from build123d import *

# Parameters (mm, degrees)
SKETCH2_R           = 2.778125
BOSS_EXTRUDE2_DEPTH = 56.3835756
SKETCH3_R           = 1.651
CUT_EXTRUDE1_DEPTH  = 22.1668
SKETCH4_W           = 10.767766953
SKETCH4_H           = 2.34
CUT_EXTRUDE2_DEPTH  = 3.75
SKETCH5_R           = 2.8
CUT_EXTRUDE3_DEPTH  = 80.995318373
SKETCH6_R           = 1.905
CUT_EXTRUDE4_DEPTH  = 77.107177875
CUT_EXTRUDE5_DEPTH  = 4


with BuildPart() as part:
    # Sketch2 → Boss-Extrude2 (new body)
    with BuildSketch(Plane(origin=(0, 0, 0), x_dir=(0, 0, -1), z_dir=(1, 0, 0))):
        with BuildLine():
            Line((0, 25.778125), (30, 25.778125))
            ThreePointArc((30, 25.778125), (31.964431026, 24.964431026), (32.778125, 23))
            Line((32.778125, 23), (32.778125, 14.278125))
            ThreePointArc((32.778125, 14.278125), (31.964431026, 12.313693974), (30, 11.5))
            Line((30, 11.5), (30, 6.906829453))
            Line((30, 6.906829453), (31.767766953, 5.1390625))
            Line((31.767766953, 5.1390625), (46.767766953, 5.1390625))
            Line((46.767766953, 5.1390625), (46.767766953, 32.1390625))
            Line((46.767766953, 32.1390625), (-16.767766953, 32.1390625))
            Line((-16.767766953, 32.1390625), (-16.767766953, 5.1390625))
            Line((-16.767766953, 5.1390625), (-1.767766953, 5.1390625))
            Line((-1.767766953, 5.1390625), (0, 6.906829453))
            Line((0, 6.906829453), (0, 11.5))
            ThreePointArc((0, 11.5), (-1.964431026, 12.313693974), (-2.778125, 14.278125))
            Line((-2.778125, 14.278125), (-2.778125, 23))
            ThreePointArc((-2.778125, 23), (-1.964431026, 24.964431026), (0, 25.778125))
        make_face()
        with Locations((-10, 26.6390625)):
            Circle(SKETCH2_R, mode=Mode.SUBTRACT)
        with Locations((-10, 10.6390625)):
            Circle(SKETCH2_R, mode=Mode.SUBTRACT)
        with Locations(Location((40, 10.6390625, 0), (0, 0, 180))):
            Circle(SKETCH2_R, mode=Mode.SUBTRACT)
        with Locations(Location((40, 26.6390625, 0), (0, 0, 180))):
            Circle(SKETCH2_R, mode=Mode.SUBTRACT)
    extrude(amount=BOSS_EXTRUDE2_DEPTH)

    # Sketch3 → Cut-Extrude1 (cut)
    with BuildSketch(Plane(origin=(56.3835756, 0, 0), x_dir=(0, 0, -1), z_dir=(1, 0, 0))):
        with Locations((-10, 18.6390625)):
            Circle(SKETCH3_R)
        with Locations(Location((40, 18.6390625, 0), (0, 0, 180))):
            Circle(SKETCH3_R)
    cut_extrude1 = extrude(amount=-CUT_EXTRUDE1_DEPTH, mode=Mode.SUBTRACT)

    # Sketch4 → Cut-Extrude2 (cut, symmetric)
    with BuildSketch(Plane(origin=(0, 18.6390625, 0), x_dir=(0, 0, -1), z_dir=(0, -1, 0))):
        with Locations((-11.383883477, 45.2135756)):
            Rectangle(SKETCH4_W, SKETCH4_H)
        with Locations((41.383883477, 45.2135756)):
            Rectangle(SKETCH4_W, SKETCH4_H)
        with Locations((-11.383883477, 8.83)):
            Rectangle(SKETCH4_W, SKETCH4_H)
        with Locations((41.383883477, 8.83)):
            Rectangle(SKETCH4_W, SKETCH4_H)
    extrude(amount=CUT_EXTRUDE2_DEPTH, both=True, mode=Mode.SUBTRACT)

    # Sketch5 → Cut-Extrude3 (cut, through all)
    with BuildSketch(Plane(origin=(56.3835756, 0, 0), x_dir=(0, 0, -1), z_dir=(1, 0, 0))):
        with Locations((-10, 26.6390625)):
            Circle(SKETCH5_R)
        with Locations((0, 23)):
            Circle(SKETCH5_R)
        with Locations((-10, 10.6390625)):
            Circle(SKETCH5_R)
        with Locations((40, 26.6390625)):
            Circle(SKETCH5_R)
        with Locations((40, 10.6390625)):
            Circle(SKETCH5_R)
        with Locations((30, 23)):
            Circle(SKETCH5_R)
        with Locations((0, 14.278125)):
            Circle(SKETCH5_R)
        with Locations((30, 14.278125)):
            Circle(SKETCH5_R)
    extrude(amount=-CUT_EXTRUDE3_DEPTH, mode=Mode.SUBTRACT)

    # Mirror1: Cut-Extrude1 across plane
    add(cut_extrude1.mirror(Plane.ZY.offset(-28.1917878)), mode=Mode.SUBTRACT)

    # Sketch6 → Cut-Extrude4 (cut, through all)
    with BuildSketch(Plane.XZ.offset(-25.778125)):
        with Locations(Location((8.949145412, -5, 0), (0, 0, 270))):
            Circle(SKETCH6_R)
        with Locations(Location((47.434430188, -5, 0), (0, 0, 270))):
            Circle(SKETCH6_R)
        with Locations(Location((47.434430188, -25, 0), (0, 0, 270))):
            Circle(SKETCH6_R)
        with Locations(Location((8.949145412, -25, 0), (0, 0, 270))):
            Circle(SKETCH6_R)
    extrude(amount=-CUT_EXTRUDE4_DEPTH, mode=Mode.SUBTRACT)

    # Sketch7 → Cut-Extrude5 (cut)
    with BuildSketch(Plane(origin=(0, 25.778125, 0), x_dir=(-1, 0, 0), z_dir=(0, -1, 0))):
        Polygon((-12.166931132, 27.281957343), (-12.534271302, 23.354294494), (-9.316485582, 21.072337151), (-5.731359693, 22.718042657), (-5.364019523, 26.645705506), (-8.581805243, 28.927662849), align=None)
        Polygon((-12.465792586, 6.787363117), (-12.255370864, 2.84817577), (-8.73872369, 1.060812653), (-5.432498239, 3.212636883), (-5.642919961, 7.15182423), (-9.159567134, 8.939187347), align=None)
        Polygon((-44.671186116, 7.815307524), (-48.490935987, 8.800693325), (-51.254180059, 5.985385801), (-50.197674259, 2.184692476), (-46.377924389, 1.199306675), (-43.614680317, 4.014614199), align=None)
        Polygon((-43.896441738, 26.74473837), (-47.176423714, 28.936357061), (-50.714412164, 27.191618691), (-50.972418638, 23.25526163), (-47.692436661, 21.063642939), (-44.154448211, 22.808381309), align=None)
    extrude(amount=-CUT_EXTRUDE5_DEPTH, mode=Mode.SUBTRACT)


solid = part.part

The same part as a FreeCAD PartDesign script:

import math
import FreeCAD as App
import Part
import Sketcher
Q = App.Units.Quantity

doc = App.newDocument("Part")
body = doc.addObject("PartDesign::Body", "Body")

sketch1 = body.newObject("Sketcher::SketchObject", "Sketch")
sketch1.AttachmentSupport = (doc.getObject("YZ_Plane"), [""])
sketch1.MapMode = "FlatFace"
sketch1.addGeometry([
    Part.LineSegment(App.Vector(25.8, 0, 0), App.Vector(25.8, -30, 0)),
    Part.ArcOfCircle(Part.Circle(App.Vector(23, -30, 0), App.Vector(0, 0, 1), 2.8), math.radians(-90), math.radians(0)),
    Part.LineSegment(App.Vector(23, -32.8, 0), App.Vector(14.3, -32.8, 0)),
    Part.ArcOfCircle(Part.Circle(App.Vector(14.3, -30, 0), App.Vector(0, 0, 1), 2.8), math.radians(-180), math.radians(-90)),
    Part.LineSegment(App.Vector(11.5, -30, 0), App.Vector(6.9, -30, 0)),
    Part.LineSegment(App.Vector(6.9, -30, 0), App.Vector(5.1, -31.8, 0)),
    Part.LineSegment(App.Vector(5.1, -31.8, 0), App.Vector(5.1, -46.8, 0)),
    Part.LineSegment(App.Vector(5.1, -46.8, 0), App.Vector(32.1, -46.8, 0)),
    Part.LineSegment(App.Vector(32.1, -46.8, 0), App.Vector(32.1, 16.8, 0)),
    Part.LineSegment(App.Vector(32.1, 16.8, 0), App.Vector(5.1, 16.8, 0)),
    Part.LineSegment(App.Vector(5.1, 16.8, 0), App.Vector(5.1, 1.8, 0)),
    Part.LineSegment(App.Vector(5.1, 1.8, 0), App.Vector(6.9, 0, 0)),
    Part.LineSegment(App.Vector(6.9, 0, 0), App.Vector(11.5, 0, 0)),
    Part.ArcOfCircle(Part.Circle(App.Vector(14.3, 0, 0), App.Vector(0, 0, 1), 2.8), math.radians(90), math.radians(180)),
    Part.LineSegment(App.Vector(14.3, 2.8, 0), App.Vector(23, 2.8, 0)),
    Part.ArcOfCircle(Part.Circle(App.Vector(23, 0, 0), App.Vector(0, 0, 1), 2.8), math.radians(0), math.radians(90)),
    Part.Circle(App.Vector(10.6, 10, 0), App.Vector(0, 0, 1), 2.8),
    Part.Circle(App.Vector(10.6, -40, 0), App.Vector(0, 0, 1), 2.8),
    Part.Circle(App.Vector(26.6, 10, 0), App.Vector(0, 0, 1), 2.8),
    Part.Circle(App.Vector(26.6, -40, 0), App.Vector(0, 0, 1), 2.8),
], False)
sketch1.addConstraint([
    Sketcher.Constraint("Tangent", 0, 2, 1, 2),
    Sketcher.Constraint("Tangent", 1, 1, 2, 1),
    Sketcher.Constraint("Tangent", 2, 2, 3, 2),
    Sketcher.Constraint("Coincident", 3, 1, 4, 1),
    Sketcher.Constraint("Coincident", 4, 2, 5, 1),
    Sketcher.Constraint("Coincident", 5, 2, 6, 1),
    Sketcher.Constraint("Coincident", 6, 2, 7, 1),
    Sketcher.Constraint("Coincident", 7, 2, 8, 1),
    Sketcher.Constraint("Coincident", 8, 2, 9, 1),
    Sketcher.Constraint("Coincident", 9, 2, 10, 1),
    Sketcher.Constraint("Coincident", 10, 2, 11, 1),
    Sketcher.Constraint("Coincident", 11, 2, 12, 1),
    Sketcher.Constraint("Coincident", 12, 2, 13, 2),
    Sketcher.Constraint("Tangent", 13, 1, 14, 1),
    Sketcher.Constraint("Tangent", 14, 2, 15, 2),
    Sketcher.Constraint("Tangent", 15, 1, 0, 1),
    Sketcher.Constraint("Vertical", 0),
    Sketcher.Constraint("Horizontal", 2),
    Sketcher.Constraint("Horizontal", 4),
    Sketcher.Constraint("Vertical", 6),
    Sketcher.Constraint("Horizontal", 7),
    Sketcher.Constraint("Vertical", 8),
    Sketcher.Constraint("Horizontal", 9),
    Sketcher.Constraint("Vertical", 10),
    Sketcher.Constraint("Horizontal", 12),
    Sketcher.Constraint("Horizontal", 14),
    Sketcher.Constraint("Equal", 1, 3),
    Sketcher.Constraint("Equal", 3, 13),
    Sketcher.Constraint("Equal", 13, 15),
    Sketcher.Constraint("Equal", 15, 16),
    Sketcher.Constraint("Equal", 16, 17),
    Sketcher.Constraint("Equal", 17, 18),
    Sketcher.Constraint("Equal", 18, 19),
    Sketcher.Constraint("PointOnObject", 13, 3, -1),
    Sketcher.Constraint("PointOnObject", 11, 2, -1),
    Sketcher.Constraint("Perpendicular", 5, 11),
    Sketcher.Constraint("Horizontal", 16, 3, 18, 3),
    Sketcher.Constraint("Horizontal", 17, 3, 19, 3),
    Sketcher.Constraint("Horizontal", 0, 2, 3, 1),
    Sketcher.Constraint("Vertical", 3, 3, 13, 3),
    Sketcher.Constraint("Vertical", 16, 3, 17, 3),
    Sketcher.Constraint("Vertical", 18, 3, 19, 3),
    Sketcher.Constraint("Vertical", 6, 2, 9, 2),
    Sketcher.Constraint("Vertical", 4, 2, 11, 2),
    Sketcher.Constraint("Equal", 6, 10),
    Sketcher.Constraint("Equal", 5, 11),
    Sketcher.Constraint("DistanceX", 7, 1, 7, 2, Q("27 mm")),
    Sketcher.Constraint("DistanceY", 0, 2, 0, 1, Q("30 mm")),
    Sketcher.Constraint("DistanceY", 6, 2, 6, 1, Q("15 mm")),
    Sketcher.Constraint("DistanceX", -1, 1, 1, 3, Q("23 mm")),
    Sketcher.Constraint("DistanceY", -1, 1, 16, 3, Q("10 mm")),
    Sketcher.Constraint("DistanceY", 17, 3, -1, 1, Q("40 mm")),
    Sketcher.Constraint("DistanceX", 16, 3, 18, 3, Q("16 mm")),
    Sketcher.Constraint("Distance", 5, Q("2.5 mm")),
    Sketcher.Constraint("DistanceX", -1, 1, 3, 1, Q("11.5 mm")),
    Sketcher.Constraint("DistanceX", 5, 2, 17, 3, Q("5.5 mm")),
    Sketcher.Constraint("Diameter", 16, Q("5.55625 mm")),
    Sketcher.Constraint("DistanceX", 4, 2, 4, 1, Q("4.593171 mm")),
])
pad1 = body.newObject("PartDesign::Pad", "Pad")
pad1.Profile = sketch1
pad1.Length = 56.383576

sketch2 = body.newObject("Sketcher::SketchObject", "Sketch001")
sketch2.AttachmentSupport = (doc.getObject("YZ_Plane"), [""])
sketch2.MapMode = "FlatFace"
sketch2.AttachmentOffset = App.Placement(App.Vector(0, 0, 56.383576), App.Rotation())
sketch2.addGeometry([
    Part.Circle(App.Vector(18.6, 10, 0), App.Vector(0, 0, 1), 1.7),
    Part.Circle(App.Vector(18.6, -40, 0), App.Vector(0, 0, 1), 1.7),
], False)
sketch2.addConstraint([
    Sketcher.Constraint("Equal", 0, 1),
    Sketcher.Constraint("Vertical", 0, 3, 1, 3),
    Sketcher.Constraint("Diameter", 0, Q("3.302 mm")),
    Sketcher.Constraint("DistanceY", -1, 1, 0, 3, Q("10 mm")),
    Sketcher.Constraint("DistanceY", 1, 3, -1, 1, Q("40 mm")),
    Sketcher.Constraint("DistanceX", -1, 1, 0, 3, Q("18.639063 mm")),
])
pocket1 = body.newObject("PartDesign::Pocket", "Pocket")
pocket1.Profile = sketch2
pocket1.Length = 22.1668

sketch3 = body.newObject("Sketcher::SketchObject", "Sketch002")
sketch3.AttachmentSupport = (doc.getObject("XZ_Plane"), [""])
sketch3.MapMode = "FlatFace"
sketch3.AttachmentOffset = App.Placement(App.Vector(0, 0, -18.639063), App.Rotation())
sketch3.addGeometry([
    Part.LineSegment(App.Vector(46.4, 16.8, 0), App.Vector(44, 16.8, 0)),
    Part.LineSegment(App.Vector(44, 16.8, 0), App.Vector(44, 6, 0)),
    Part.LineSegment(App.Vector(44, 6, 0), App.Vector(46.4, 6, 0)),
    Part.LineSegment(App.Vector(46.4, 6, 0), App.Vector(46.4, 16.8, 0)),
    Part.LineSegment(App.Vector(46.4, -36, 0), App.Vector(44, -36, 0)),
    Part.LineSegment(App.Vector(44, -36, 0), App.Vector(44, -46.8, 0)),
    Part.LineSegment(App.Vector(44, -46.8, 0), App.Vector(46.4, -46.8, 0)),
    Part.LineSegment(App.Vector(46.4, -46.8, 0), App.Vector(46.4, -36, 0)),
    Part.LineSegment(App.Vector(10, 16.8, 0), App.Vector(7.7, 16.8, 0)),
    Part.LineSegment(App.Vector(7.7, 16.8, 0), App.Vector(7.7, 6, 0)),
    Part.LineSegment(App.Vector(7.7, 6, 0), App.Vector(10, 6, 0)),
    Part.LineSegment(App.Vector(10, 6, 0), App.Vector(10, 16.8, 0)),
    Part.LineSegment(App.Vector(10, -36, 0), App.Vector(7.7, -36, 0)),
    Part.LineSegment(App.Vector(7.7, -36, 0), App.Vector(7.7, -46.8, 0)),
    Part.LineSegment(App.Vector(7.7, -46.8, 0), App.Vector(10, -46.8, 0)),
    Part.LineSegment(App.Vector(10, -46.8, 0), App.Vector(10, -36, 0)),
], False)
sketch3.addConstraint([
    Sketcher.Constraint("Coincident", 0, 2, 1, 1),
    Sketcher.Constraint("Coincident", 1, 2, 2, 1),
    Sketcher.Constraint("Coincident", 2, 2, 3, 1),
    Sketcher.Constraint("Coincident", 3, 2, 0, 1),
    Sketcher.Constraint("Coincident", 4, 2, 5, 1),
    Sketcher.Constraint("Coincident", 5, 2, 6, 1),
    Sketcher.Constraint("Coincident", 6, 2, 7, 1),
    Sketcher.Constraint("Coincident", 7, 2, 4, 1),
    Sketcher.Constraint("Coincident", 8, 2, 9, 1),
    Sketcher.Constraint("Coincident", 9, 2, 10, 1),
    Sketcher.Constraint("Coincident", 10, 2, 11, 1),
    Sketcher.Constraint("Coincident", 11, 2, 8, 1),
    Sketcher.Constraint("Coincident", 12, 2, 13, 1),
    Sketcher.Constraint("Coincident", 13, 2, 14, 1),
    Sketcher.Constraint("Coincident", 14, 2, 15, 1),
    Sketcher.Constraint("Coincident", 15, 2, 12, 1),
    Sketcher.Constraint("Horizontal", 0),
    Sketcher.Constraint("Vertical", 1),
    Sketcher.Constraint("Horizontal", 2),
    Sketcher.Constraint("Vertical", 3),
    Sketcher.Constraint("Horizontal", 4),
    Sketcher.Constraint("Vertical", 5),
    Sketcher.Constraint("Horizontal", 6),
    Sketcher.Constraint("Vertical", 7),
    Sketcher.Constraint("Horizontal", 8),
    Sketcher.Constraint("Vertical", 9),
    Sketcher.Constraint("Horizontal", 10),
    Sketcher.Constraint("Vertical", 11),
    Sketcher.Constraint("Horizontal", 12),
    Sketcher.Constraint("Vertical", 13),
    Sketcher.Constraint("Horizontal", 14),
    Sketcher.Constraint("Vertical", 15),
    Sketcher.Constraint("Horizontal", 3, 2, 8, 2),
    Sketcher.Constraint("Horizontal", 2, 2, 9, 2),
    Sketcher.Constraint("Horizontal", 7, 2, 12, 2),
    Sketcher.Constraint("Horizontal", 6, 2, 13, 2),
    Sketcher.Constraint("Vertical", 1, 2, 4, 2),
    Sketcher.Constraint("Vertical", 3, 2, 6, 2),
    Sketcher.Constraint("Vertical", 9, 2, 12, 2),
    Sketcher.Constraint("Vertical", 11, 2, 14, 2),
    Sketcher.Constraint("Equal", 6, 8),
    Sketcher.Constraint("Equal", 3, 5),
    Sketcher.Constraint("DistanceY", -1, 1, 1, 2, Q("6 mm")),
    Sketcher.Constraint("DistanceY", 4, 2, -1, 1, Q("36 mm")),
    Sketcher.Constraint("DistanceX", -1, 1, 10, 2, Q("10 mm")),
    Sketcher.Constraint("DistanceX", 0, 2, 0, 1, Q("2.34 mm")),
    Sketcher.Constraint("DistanceY", 1, 2, 1, 1, Q("10.767767 mm")),
    Sketcher.Constraint("DistanceX", -1, 1, 0, 2, Q("44.043576 mm")),
])
pocket2 = body.newObject("PartDesign::Pocket", "Pocket001")
pocket2.Profile = sketch3
pocket2.Length = 7.5
pocket2.Midplane = True

sketch4 = body.newObject("Sketcher::SketchObject", "Sketch003")
sketch4.AttachmentSupport = (doc.getObject("YZ_Plane"), [""])
sketch4.MapMode = "FlatFace"
sketch4.AttachmentOffset = App.Placement(App.Vector(0, 0, 56.383576), App.Rotation())
sketch4.addGeometry([
    Part.Circle(App.Vector(26.6, 10, 0), App.Vector(0, 0, 1), 2.8),
    Part.Circle(App.Vector(23, 0, 0), App.Vector(0, 0, 1), 2.8),
    Part.Circle(App.Vector(10.6, 10, 0), App.Vector(0, 0, 1), 2.8),
    Part.Circle(App.Vector(26.6, -40, 0), App.Vector(0, 0, 1), 2.8),
    Part.Circle(App.Vector(10.6, -40, 0), App.Vector(0, 0, 1), 2.8),
    Part.Circle(App.Vector(23, -30, 0), App.Vector(0, 0, 1), 2.8),
    Part.Circle(App.Vector(14.3, 0, 0), App.Vector(0, 0, 1), 2.8),
    Part.Circle(App.Vector(14.3, -30, 0), App.Vector(0, 0, 1), 2.8),
], False)
sketch4.addConstraint([
    Sketcher.Constraint("Equal", 0, 1),
    Sketcher.Constraint("Equal", 1, 2),
    Sketcher.Constraint("Equal", 2, 3),
    Sketcher.Constraint("Equal", 3, 4),
    Sketcher.Constraint("Equal", 4, 5),
    Sketcher.Constraint("Equal", 5, 6),
    Sketcher.Constraint("Equal", 6, 7),
    Sketcher.Constraint("PointOnObject", 1, 3, -1),
    Sketcher.Constraint("PointOnObject", 6, 3, -1),
    Sketcher.Constraint("Horizontal", 0, 3, 2, 3),
    Sketcher.Constraint("Horizontal", 3, 3, 4, 3),
    Sketcher.Constraint("Horizontal", 5, 3, 7, 3),
    Sketcher.Constraint("Vertical", 0, 3, 3, 3),
    Sketcher.Constraint("Vertical", 2, 3, 4, 3),
    Sketcher.Constraint("Vertical", 1, 3, 5, 3),
    Sketcher.Constraint("Vertical", 6, 3, 7, 3),
    Sketcher.Constraint("Diameter", 0, Q("5.6 mm")),
    Sketcher.Constraint("DistanceY", -1, 1, 0, 3, Q("10 mm")),
    Sketcher.Constraint("DistanceX", -1, 1, 1, 3, Q("23 mm")),
    Sketcher.Constraint("DistanceY", 3, 3, -1, 1, Q("40 mm")),
    Sketcher.Constraint("DistanceY", 5, 3, -1, 1, Q("30 mm")),
    Sketcher.Constraint("DistanceX", 2, 3, 0, 3, Q("16 mm")),
    Sketcher.Constraint("DistanceX", -1, 1, 0, 3, Q("26.639063 mm")),
    Sketcher.Constraint("DistanceX", -1, 1, 6, 3, Q("14.278125 mm")),
])
pocket3 = body.newObject("PartDesign::Pocket", "Pocket002")
pocket3.Profile = sketch4
pocket3.Type = "ThroughAll"
doc.recompute()

datumplane = body.newObject("PartDesign::Plane", "DatumPlane")
datumplane.AttachmentSupport = (doc.getObject("YZ_Plane"), [""])
datumplane.MapMode = "FlatFace"
datumplane.AttachmentOffset = App.Placement(App.Vector(0, 0, 28.191788), App.Rotation())
mirrored = body.newObject("PartDesign::Mirrored", "Mirrored")
mirrored.Originals = [pocket1]
mirrored.MirrorPlane = (datumplane, [""])
body.Tip = mirrored

sketch5 = body.newObject("Sketcher::SketchObject", "Sketch004")
sketch5.AttachmentSupport = (doc.getObject("XZ_Plane"), [""])
sketch5.MapMode = "FlatFace"
sketch5.AttachmentOffset = App.Placement(App.Vector(0, 0, -25.778125), App.Rotation())
sketch5.addGeometry([
    Part.Circle(App.Vector(8.9, -5, 0), App.Vector(0, 0, 1), 1.9),
    Part.Circle(App.Vector(47.4, -5, 0), App.Vector(0, 0, 1), 1.9),
    Part.Circle(App.Vector(47.4, -25, 0), App.Vector(0, 0, 1), 1.9),
    Part.Circle(App.Vector(8.9, -25, 0), App.Vector(0, 0, 1), 1.9),
], False)
sketch5.addConstraint([
    Sketcher.Constraint("Equal", 0, 1),
    Sketcher.Constraint("Equal", 1, 2),
    Sketcher.Constraint("Equal", 2, 3),
    Sketcher.Constraint("Horizontal", 0, 3, 1, 3),
    Sketcher.Constraint("Horizontal", 2, 3, 3, 3),
    Sketcher.Constraint("Vertical", 1, 3, 2, 3),
    Sketcher.Constraint("Vertical", 0, 3, 3, 3),
    Sketcher.Constraint("Diameter", 0, Q("3.81 mm")),
    Sketcher.Constraint("DistanceY", 0, 3, -1, 1, Q("5 mm")),
    Sketcher.Constraint("DistanceY", 2, 3, -1, 1, Q("25 mm")),
    Sketcher.Constraint("DistanceX", -1, 1, 1, 3, Q("47.43443 mm")),
    Sketcher.Constraint("DistanceX", -1, 1, 0, 3, Q("8.949145 mm")),
])
pocket4 = body.newObject("PartDesign::Pocket", "Pocket003")
pocket4.Profile = sketch5
pocket4.Type = "ThroughAll"

sketch6 = body.newObject("Sketcher::SketchObject", "Sketch005")
sketch6.AttachmentSupport = (doc.getObject("XZ_Plane"), [""])
sketch6.MapMode = "FlatFace"
sketch6.AttachmentOffset = App.Placement(App.Vector(0, 0, -25.778125), App.Rotation())
sketch6.addGeometry([
    Part.LineSegment(App.Vector(12.2, -27.3, 0), App.Vector(12.5, -23.4, 0)),
    Part.LineSegment(App.Vector(12.5, -23.4, 0), App.Vector(9.3, -21.1, 0)),
    Part.LineSegment(App.Vector(9.3, -21.1, 0), App.Vector(5.7, -22.7, 0)),
    Part.LineSegment(App.Vector(5.7, -22.7, 0), App.Vector(5.4, -26.6, 0)),
    Part.LineSegment(App.Vector(5.4, -26.6, 0), App.Vector(8.6, -28.9, 0)),
    Part.LineSegment(App.Vector(8.6, -28.9, 0), App.Vector(12.2, -27.3, 0)),
    Part.LineSegment(App.Vector(12.5, -6.8, 0), App.Vector(12.3, -2.8, 0)),
    Part.LineSegment(App.Vector(12.3, -2.8, 0), App.Vector(8.7, -1.1, 0)),
    Part.LineSegment(App.Vector(8.7, -1.1, 0), App.Vector(5.4, -3.2, 0)),
    Part.LineSegment(App.Vector(5.4, -3.2, 0), App.Vector(5.6, -7.2, 0)),
    Part.LineSegment(App.Vector(5.6, -7.2, 0), App.Vector(9.2, -8.9, 0)),
    Part.LineSegment(App.Vector(9.2, -8.9, 0), App.Vector(12.5, -6.8, 0)),
    Part.LineSegment(App.Vector(44.7, -7.8, 0), App.Vector(48.5, -8.8, 0)),
    Part.LineSegment(App.Vector(48.5, -8.8, 0), App.Vector(51.3, -6, 0)),
    Part.LineSegment(App.Vector(51.3, -6, 0), App.Vector(50.2, -2.2, 0)),
    Part.LineSegment(App.Vector(50.2, -2.2, 0), App.Vector(46.4, -1.2, 0)),
    Part.LineSegment(App.Vector(46.4, -1.2, 0), App.Vector(43.6, -4, 0)),
    Part.LineSegment(App.Vector(43.6, -4, 0), App.Vector(44.7, -7.8, 0)),
    Part.LineSegment(App.Vector(43.9, -26.7, 0), App.Vector(47.2, -28.9, 0)),
    Part.LineSegment(App.Vector(47.2, -28.9, 0), App.Vector(50.7, -27.2, 0)),
    Part.LineSegment(App.Vector(50.7, -27.2, 0), App.Vector(51, -23.3, 0)),
    Part.LineSegment(App.Vector(51, -23.3, 0), App.Vector(47.7, -21.1, 0)),
    Part.LineSegment(App.Vector(47.7, -21.1, 0), App.Vector(44.2, -22.8, 0)),
    Part.LineSegment(App.Vector(44.2, -22.8, 0), App.Vector(43.9, -26.7, 0)),
], False)
sketch6.addConstraint([
    Sketcher.Constraint("Coincident", 0, 2, 1, 1),
    Sketcher.Constraint("Coincident", 1, 2, 2, 1),
    Sketcher.Constraint("Coincident", 2, 2, 3, 1),
    Sketcher.Constraint("Coincident", 3, 2, 4, 1),
    Sketcher.Constraint("Coincident", 4, 2, 5, 1),
    Sketcher.Constraint("Coincident", 5, 2, 0, 1),
    Sketcher.Constraint("Coincident", 6, 2, 7, 1),
    Sketcher.Constraint("Coincident", 7, 2, 8, 1),
    Sketcher.Constraint("Coincident", 8, 2, 9, 1),
    Sketcher.Constraint("Coincident", 9, 2, 10, 1),
    Sketcher.Constraint("Coincident", 10, 2, 11, 1),
    Sketcher.Constraint("Coincident", 11, 2, 6, 1),
    Sketcher.Constraint("Coincident", 12, 2, 13, 1),
    Sketcher.Constraint("Coincident", 13, 2, 14, 1),
    Sketcher.Constraint("Coincident", 14, 2, 15, 1),
    Sketcher.Constraint("Coincident", 15, 2, 16, 1),
    Sketcher.Constraint("Coincident", 16, 2, 17, 1),
    Sketcher.Constraint("Coincident", 17, 2, 12, 1),
    Sketcher.Constraint("Coincident", 18, 2, 19, 1),
    Sketcher.Constraint("Coincident", 19, 2, 20, 1),
    Sketcher.Constraint("Coincident", 20, 2, 21, 1),
    Sketcher.Constraint("Coincident", 21, 2, 22, 1),
    Sketcher.Constraint("Coincident", 22, 2, 23, 1),
    Sketcher.Constraint("Coincident", 23, 2, 18, 1),
    Sketcher.Constraint("Parallel", 0, 3),
    Sketcher.Constraint("Parallel", 1, 4),
    Sketcher.Constraint("Parallel", 2, 5),
    Sketcher.Constraint("Parallel", 6, 9),
    Sketcher.Constraint("Parallel", 7, 10),
    Sketcher.Constraint("Parallel", 8, 11),
    Sketcher.Constraint("Parallel", 12, 15),
    Sketcher.Constraint("Parallel", 13, 16),
    Sketcher.Constraint("Parallel", 14, 17),
    Sketcher.Constraint("Parallel", 18, 21),
    Sketcher.Constraint("Parallel", 19, 22),
    Sketcher.Constraint("Parallel", 20, 23),
    Sketcher.Constraint("Equal", 0, 1),
    Sketcher.Constraint("Equal", 1, 2),
    Sketcher.Constraint("Equal", 2, 3),
    Sketcher.Constraint("Equal", 5, 6),
    Sketcher.Constraint("Equal", 6, 7),
    Sketcher.Constraint("Equal", 7, 8),
    Sketcher.Constraint("Equal", 8, 9),
    Sketcher.Constraint("Equal", 11, 12),
    Sketcher.Constraint("Equal", 12, 13),
    Sketcher.Constraint("Equal", 13, 14),
    Sketcher.Constraint("Equal", 14, 15),
    Sketcher.Constraint("Equal", 17, 18),
    Sketcher.Constraint("Equal", 18, 19),
    Sketcher.Constraint("Equal", 19, 20),
    Sketcher.Constraint("Equal", 20, 21),
    Sketcher.Constraint("DistanceY", 12, 2, 14, 2, Q("6.616001 mm")),
    Sketcher.Constraint("DistanceX", -1, 1, 8, 2, Q("5.432498 mm")),
    Sketcher.Constraint("DistanceX", 6, 2, 0, 2, Q("0.2789 mm")),
    Sketcher.Constraint("DistanceY", 1, 2, 8, 2, Q("17.8597 mm")),
    Sketcher.Constraint("DistanceY", 0, 2, 12, 2, Q("14.553601 mm")),
    Sketcher.Constraint("DistanceY", 10, 2, 13, 2, Q("2.953802 mm")),
    Sketcher.Constraint("DistanceX", 16, 2, 13, 2, Q("7.6395 mm")),
    Sketcher.Constraint("DistanceX", 21, 2, 12, 2, Q("0.798499 mm")),
    Sketcher.Constraint("DistanceX", -1, 1, 0, 2, Q("12.534271 mm")),
    Sketcher.Constraint("DistanceX", -1, 1, 2, 2, Q("5.73136 mm")),
    Sketcher.Constraint("DistanceX", -1, 1, 3, 2, Q("5.36402 mm")),
    Sketcher.Constraint("DistanceX", -1, 1, 9, 2, Q("5.64292 mm")),
    Sketcher.Constraint("DistanceX", -1, 1, 13, 2, Q("51.25418 mm")),
    Sketcher.Constraint("DistanceY", 19, 2, -1, 1, Q("27.191619 mm")),
    Sketcher.Constraint("DistanceX", -1, 1, 20, 2, Q("50.972419 mm")),
    Sketcher.Constraint("DistanceY", 20, 2, -1, 1, Q("23.255262 mm")),
    Sketcher.Constraint("DistanceX", -1, 1, 22, 2, Q("44.154448 mm")),
    Sketcher.Constraint("DistanceY", 22, 2, -1, 1, Q("22.808381 mm")),
    Sketcher.Constraint("DistanceX", -1, 1, 23, 2, Q("43.896442 mm")),
    Sketcher.Constraint("DistanceY", 0, 2, 2, 2, Q("0.636252 mm")),
    Sketcher.Constraint("DistanceY", 18, 2, 17, 2, Q("21.12105 mm")),
])
pocket5 = body.newObject("PartDesign::Pocket", "Pocket004")
pocket5.Profile = sketch6
pocket5.Length = 4

doc.recompute()
